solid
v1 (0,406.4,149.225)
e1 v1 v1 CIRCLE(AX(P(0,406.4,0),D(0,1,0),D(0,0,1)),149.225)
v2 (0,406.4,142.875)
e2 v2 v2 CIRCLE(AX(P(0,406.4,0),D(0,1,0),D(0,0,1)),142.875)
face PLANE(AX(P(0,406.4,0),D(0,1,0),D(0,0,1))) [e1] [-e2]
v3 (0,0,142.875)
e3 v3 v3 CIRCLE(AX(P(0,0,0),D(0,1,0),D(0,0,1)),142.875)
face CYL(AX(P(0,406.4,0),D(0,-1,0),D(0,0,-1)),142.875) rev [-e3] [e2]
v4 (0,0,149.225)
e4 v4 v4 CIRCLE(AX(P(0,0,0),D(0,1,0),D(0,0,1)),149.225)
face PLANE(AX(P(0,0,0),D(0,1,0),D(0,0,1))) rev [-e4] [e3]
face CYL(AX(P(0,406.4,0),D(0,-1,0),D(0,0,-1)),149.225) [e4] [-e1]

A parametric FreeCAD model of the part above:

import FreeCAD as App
import Part
import Sketcher
Q = App.Units.Quantity

doc = App.newDocument("Part")
body = doc.addObject("PartDesign::Body", "Body")

sketch1 = body.newObject("Sketcher::SketchObject", "Sketch")
sketch1.AttachmentSupport = (doc.getObject("XZ_Plane"), [""])
sketch1.MapMode = "FlatFace"
sketch1.addGeometry([
    Part.Circle(App.Vector(0, 0, 0), App.Vector(0, 0, 1), 149.225),
    Part.Circle(App.Vector(0, 0, 0), App.Vector(0, 0, 1), 142.875),
], False)
sketch1.addConstraint([
    Sketcher.Constraint("Coincident", 0, 3, -1, 1),
    Sketcher.Constraint("Coincident", 1, 3, -1, 1),
    Sketcher.Constraint("Diameter", 0, Q("11.75 in")),
    Sketcher.Constraint("Diameter", 1, Q("11.25 in")),
])
pad1 = body.newObject("PartDesign::Pad", "Pad")
pad1.Profile = sketch1
pad1.Length = Q("16 in")
pad1.Reversed = True

doc.recompute()
